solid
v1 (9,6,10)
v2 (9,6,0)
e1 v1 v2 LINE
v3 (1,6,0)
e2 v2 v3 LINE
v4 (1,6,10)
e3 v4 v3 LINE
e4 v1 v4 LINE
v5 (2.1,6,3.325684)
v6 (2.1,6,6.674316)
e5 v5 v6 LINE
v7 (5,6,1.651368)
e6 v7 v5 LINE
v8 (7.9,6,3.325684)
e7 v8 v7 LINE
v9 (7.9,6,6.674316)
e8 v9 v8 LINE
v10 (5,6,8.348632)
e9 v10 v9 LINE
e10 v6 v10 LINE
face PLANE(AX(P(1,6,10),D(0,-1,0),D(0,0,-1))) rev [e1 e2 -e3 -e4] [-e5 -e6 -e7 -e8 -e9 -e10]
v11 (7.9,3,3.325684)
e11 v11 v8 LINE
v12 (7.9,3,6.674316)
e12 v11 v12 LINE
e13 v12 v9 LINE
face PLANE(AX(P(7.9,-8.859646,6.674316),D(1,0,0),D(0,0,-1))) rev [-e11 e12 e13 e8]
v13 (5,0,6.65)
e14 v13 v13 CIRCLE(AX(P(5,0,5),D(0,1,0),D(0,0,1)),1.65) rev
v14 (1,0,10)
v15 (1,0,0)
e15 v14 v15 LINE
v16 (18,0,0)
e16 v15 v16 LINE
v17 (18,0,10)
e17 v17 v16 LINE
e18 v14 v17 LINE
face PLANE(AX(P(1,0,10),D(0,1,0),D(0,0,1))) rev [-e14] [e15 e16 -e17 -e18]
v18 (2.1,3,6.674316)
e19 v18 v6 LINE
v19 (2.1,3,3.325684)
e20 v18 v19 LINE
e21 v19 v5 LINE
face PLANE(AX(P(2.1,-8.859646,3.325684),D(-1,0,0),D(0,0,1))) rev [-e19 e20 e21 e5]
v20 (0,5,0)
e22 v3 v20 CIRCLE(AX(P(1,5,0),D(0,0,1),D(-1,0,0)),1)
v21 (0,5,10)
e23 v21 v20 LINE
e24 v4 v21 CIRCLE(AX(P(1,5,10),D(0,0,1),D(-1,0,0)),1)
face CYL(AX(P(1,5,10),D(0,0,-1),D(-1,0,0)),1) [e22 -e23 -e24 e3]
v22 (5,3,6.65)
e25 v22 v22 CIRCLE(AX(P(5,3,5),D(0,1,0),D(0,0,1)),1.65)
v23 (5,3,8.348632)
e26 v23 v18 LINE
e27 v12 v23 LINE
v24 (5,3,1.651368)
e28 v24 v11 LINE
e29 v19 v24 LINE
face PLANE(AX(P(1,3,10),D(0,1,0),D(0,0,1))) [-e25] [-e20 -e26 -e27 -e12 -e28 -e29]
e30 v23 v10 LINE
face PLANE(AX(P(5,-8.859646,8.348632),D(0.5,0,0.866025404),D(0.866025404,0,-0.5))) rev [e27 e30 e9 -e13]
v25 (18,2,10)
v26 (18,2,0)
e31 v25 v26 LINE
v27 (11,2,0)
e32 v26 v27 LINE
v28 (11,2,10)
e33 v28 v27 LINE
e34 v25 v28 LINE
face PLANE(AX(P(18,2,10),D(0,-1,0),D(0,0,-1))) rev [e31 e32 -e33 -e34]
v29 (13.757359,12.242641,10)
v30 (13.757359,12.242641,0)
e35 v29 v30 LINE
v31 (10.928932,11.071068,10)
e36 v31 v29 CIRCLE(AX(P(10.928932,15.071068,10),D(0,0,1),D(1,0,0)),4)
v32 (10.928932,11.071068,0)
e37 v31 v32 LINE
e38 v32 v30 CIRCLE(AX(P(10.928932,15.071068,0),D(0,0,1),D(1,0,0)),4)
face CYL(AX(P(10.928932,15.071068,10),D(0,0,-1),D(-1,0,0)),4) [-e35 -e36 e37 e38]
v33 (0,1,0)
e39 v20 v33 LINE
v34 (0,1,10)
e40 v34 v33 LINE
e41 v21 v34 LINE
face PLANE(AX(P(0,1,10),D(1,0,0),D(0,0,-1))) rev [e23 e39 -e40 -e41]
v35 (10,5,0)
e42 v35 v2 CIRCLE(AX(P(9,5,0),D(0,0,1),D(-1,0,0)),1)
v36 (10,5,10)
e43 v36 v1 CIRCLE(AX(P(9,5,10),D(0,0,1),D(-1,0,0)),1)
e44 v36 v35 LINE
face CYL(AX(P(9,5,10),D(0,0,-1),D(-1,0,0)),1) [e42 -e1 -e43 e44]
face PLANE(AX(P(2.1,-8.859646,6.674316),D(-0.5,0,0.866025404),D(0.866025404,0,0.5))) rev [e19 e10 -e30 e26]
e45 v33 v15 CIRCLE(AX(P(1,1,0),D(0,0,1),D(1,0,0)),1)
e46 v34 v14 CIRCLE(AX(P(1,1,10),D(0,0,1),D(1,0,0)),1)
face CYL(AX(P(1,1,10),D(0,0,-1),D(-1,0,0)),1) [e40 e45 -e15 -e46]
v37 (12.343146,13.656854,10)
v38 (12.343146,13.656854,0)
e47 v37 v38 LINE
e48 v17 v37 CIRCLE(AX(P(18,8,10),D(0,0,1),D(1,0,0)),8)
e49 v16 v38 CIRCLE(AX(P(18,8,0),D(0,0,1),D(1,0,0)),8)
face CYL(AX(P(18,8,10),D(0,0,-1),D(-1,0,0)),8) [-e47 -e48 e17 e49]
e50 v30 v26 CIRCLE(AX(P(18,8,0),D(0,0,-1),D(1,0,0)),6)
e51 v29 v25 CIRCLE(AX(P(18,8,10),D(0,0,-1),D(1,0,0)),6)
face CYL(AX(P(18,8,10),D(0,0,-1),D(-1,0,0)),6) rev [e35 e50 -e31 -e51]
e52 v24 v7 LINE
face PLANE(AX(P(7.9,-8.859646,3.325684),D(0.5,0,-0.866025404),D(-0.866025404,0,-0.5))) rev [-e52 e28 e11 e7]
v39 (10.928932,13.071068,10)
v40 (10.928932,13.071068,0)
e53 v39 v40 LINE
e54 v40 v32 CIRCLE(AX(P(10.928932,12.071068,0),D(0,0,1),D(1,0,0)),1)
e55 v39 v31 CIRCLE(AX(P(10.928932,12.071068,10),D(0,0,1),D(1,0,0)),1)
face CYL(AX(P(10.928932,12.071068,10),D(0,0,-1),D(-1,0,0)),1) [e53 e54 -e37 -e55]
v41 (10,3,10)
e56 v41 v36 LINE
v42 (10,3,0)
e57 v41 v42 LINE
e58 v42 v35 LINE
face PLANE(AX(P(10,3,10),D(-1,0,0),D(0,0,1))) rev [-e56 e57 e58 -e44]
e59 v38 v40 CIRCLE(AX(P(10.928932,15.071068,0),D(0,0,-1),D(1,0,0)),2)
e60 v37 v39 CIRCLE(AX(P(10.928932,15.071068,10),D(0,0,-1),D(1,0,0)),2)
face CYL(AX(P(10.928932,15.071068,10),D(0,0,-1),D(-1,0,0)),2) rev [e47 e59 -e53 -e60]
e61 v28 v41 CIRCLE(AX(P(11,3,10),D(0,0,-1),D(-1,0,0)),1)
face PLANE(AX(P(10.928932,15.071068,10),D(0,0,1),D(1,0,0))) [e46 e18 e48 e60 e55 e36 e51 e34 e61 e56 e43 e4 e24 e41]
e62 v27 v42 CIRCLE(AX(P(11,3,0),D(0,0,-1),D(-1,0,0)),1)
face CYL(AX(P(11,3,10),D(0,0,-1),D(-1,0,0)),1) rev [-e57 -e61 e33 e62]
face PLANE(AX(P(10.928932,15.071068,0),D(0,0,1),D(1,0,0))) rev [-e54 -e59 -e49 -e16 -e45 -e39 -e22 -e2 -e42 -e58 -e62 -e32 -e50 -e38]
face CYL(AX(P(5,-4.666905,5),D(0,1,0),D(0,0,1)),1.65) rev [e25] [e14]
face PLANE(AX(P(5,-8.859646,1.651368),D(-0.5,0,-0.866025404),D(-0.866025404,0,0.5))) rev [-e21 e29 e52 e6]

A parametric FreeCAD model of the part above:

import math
import FreeCAD as App
import Part
import Sketcher
Q = App.Units.Quantity

doc = App.newDocument("Part")
body = doc.addObject("PartDesign::Body", "Body")

# Sketch on XY plane
sketch1 = body.newObject("Sketcher::SketchObject", "Sketch")
sketch1.AttachmentSupport = (doc.getObject("XY_Plane"), [""])
sketch1.MapMode = "FlatFace"
sketch1.addGeometry([
    Part.LineSegment(App.Vector(0, 5, 0), App.Vector(0, 1, 0)),  # 0
    Part.ArcOfCircle(Part.Circle(App.Vector(1, 1, 0), App.Vector(0, 0, 1), 1), math.radians(-180), math.radians(-90)),  # 1
    Part.LineSegment(App.Vector(1, 0, 0), App.Vector(18, 0, 0)),  # 2
    Part.ArcOfCircle(Part.Circle(App.Vector(18, 8, 0), App.Vector(0, 0, 1), 8), math.radians(-90), math.radians(135)),  # 3
    Part.ArcOfCircle(Part.Circle(App.Vector(10.928932, 15.071068, 0), App.Vector(0, 0, 1), 2), math.radians(-90), math.radians(-45)),  # 4
    Part.ArcOfCircle(Part.Circle(App.Vector(10.928932, 12.071068, 0), App.Vector(0, 0, 1), 1), math.radians(90), math.radians(270)),  # 5
    Part.ArcOfCircle(Part.Circle(App.Vector(10.928932, 15.071068, 0), App.Vector(0, 0, 1), 4), math.radians(-90), math.radians(-45)),  # 6
    Part.ArcOfCircle(Part.Circle(App.Vector(18, 8, 0), App.Vector(0, 0, 1), 6), math.radians(-90), math.radians(135)),  # 7
    Part.LineSegment(App.Vector(18, 2, 0), App.Vector(11, 2, 0)),  # 8
    Part.ArcOfCircle(Part.Circle(App.Vector(11, 3, 0), App.Vector(0, 0, 1), 1), math.radians(-180), math.radians(-90)),  # 9
    Part.LineSegment(App.Vector(10, 3, 0), App.Vector(10, 5, 0)),  # 10
    Part.ArcOfCircle(Part.Circle(App.Vector(9, 5, 0), App.Vector(0, 0, 1), 1), math.radians(0), math.radians(90)),  # 11
    Part.LineSegment(App.Vector(9, 6, 0), App.Vector(1, 6, 0)),  # 12
    Part.ArcOfCircle(Part.Circle(App.Vector(1, 5, 0), App.Vector(0, 0, 1), 1), math.radians(90), math.radians(180)),  # 13
], False)
sketch1.addConstraint([
    Sketcher.Constraint("Tangent", 0, 2, 1, 1),
    Sketcher.Constraint("Tangent", 1, 2, 2, 1),
    Sketcher.Constraint("Tangent", 2, 2, 3, 1),
    Sketcher.Constraint("Tangent", 3, 2, 4, 2),
    Sketcher.Constraint("Tangent", 4, 1, 5, 1),
    Sketcher.Constraint("Tangent", 5, 2, 6, 1),
    Sketcher.Constraint("Tangent", 6, 2, 7, 2),
    Sketcher.Constraint("Tangent", 7, 1, 8, 1),
    Sketcher.Constraint("Tangent", 8, 2, 9, 2),
    Sketcher.Constraint("Tangent", 9, 1, 10, 1),
    Sketcher.Constraint("Tangent", 10, 2, 11, 1),
    Sketcher.Constraint("Tangent", 11, 2, 12, 1),
    Sketcher.Constraint("Tangent", 12, 2, 13, 1),
    Sketcher.Constraint("Tangent", 13, 2, 0, 1),
    Sketcher.Constraint("Vertical", 0),
    Sketcher.Constraint("Horizontal", 2),
    Sketcher.Constraint("Horizontal", 8),
    Sketcher.Constraint("Vertical", 10),
    Sketcher.Constraint("Horizontal", 12),
    Sketcher.Constraint("Coincident", 6, 3, 4, 3),
    Sketcher.Constraint("Coincident", 7, 3, 3, 3),
    Sketcher.Constraint("Equal", 1, 5),
    Sketcher.Constraint("Equal", 5, 9),
    Sketcher.Constraint("Equal", 9, 11),
    Sketcher.Constraint("Equal", 11, 13),
    Sketcher.Constraint("PointOnObject", 0, 2, -2),
    Sketcher.Constraint("PointOnObject", 1, 2, -1),
    Sketcher.Constraint("Vertical", 4, 3, 5, 3),
    Sketcher.Constraint("Radius", 1, Q("1 mm")),
    Sketcher.Constraint("Radius", 3, Q("8 mm")),
    Sketcher.Constraint("Radius", 4, Q("2 mm")),
    Sketcher.Constraint("DistanceX", 2, 1, 2, 2, Q("17 mm")),
    Sketcher.Constraint("DistanceX", 8, 2, 8, 1, Q("7 mm")),
    Sketcher.Constraint("DistanceY", 0, 2, 0, 1, Q("4 mm")),
    Sketcher.Constraint("DistanceX", -1, 1, 6, 2, Q("13.757359 mm")),
])
pad1 = body.newObject("PartDesign::Pad", "Pad")
pad1.Profile = sketch1
pad1.Length = 10

# Sketch on XZ plane
sketch2 = body.newObject("Sketcher::SketchObject", "Sketch001")
sketch2.AttachmentSupport = (doc.getObject("XZ_Plane"), [""])
sketch2.MapMode = "FlatFace"
sketch2.AttachmentOffset = App.Placement(App.Vector(0, 0, -6), App.Rotation())
sketch2.addGeometry([
    Part.LineSegment(App.Vector(5, 1.651368, 0), App.Vector(2.1, 3.325684, 0)),  # 0
    Part.LineSegment(App.Vector(2.1, 3.325684, 0), App.Vector(2.1, 6.674316, 0)),  # 1
    Part.LineSegment(App.Vector(2.1, 6.674316, 0), App.Vector(5, 8.348632, 0)),  # 2
    Part.LineSegment(App.Vector(5, 8.348632, 0), App.Vector(7.9, 6.674316, 0)),  # 3
    Part.LineSegment(App.Vector(7.9, 6.674316, 0), App.Vector(7.9, 3.325684, 0)),  # 4
    Part.LineSegment(App.Vector(7.9, 3.325684, 0), App.Vector(5, 1.651368, 0)),  # 5
], False)
sketch2.addConstraint([
    Sketcher.Constraint("Coincident", 0, 2, 1, 1),
    Sketcher.Constraint("Coincident", 1, 2, 2, 1),
    Sketcher.Constraint("Coincident", 2, 2, 3, 1),
    Sketcher.Constraint("Coincident", 3, 2, 4, 1),
    Sketcher.Constraint("Coincident", 4, 2, 5, 1),
    Sketcher.Constraint("Coincident", 5, 2, 0, 1),
    Sketcher.Constraint("Vertical", 1),
    Sketcher.Constraint("Vertical", 4),
    Sketcher.Constraint("Parallel", 0, 3),
    Sketcher.Constraint("Parallel", 2, 5),
    Sketcher.Constraint("Horizontal", 1, 2, 3, 2),
    Sketcher.Constraint("Horizontal", 0, 2, 4, 2),
    Sketcher.Constraint("Vertical", 2, 2, 5, 2),
    Sketcher.Constraint("Angle", 0, Q("150 deg")),
    Sketcher.Constraint("DistanceX", -1, 1, 2, 2, Q("5 mm")),
    Sketcher.Constraint("DistanceX", -1, 1, 0, 2, Q("2.1 mm")),
    Sketcher.Constraint("DistanceY", 1, 1, 1, 2, Q("3.348632 mm")),
    Sketcher.Constraint("DistanceY", -1, 1, 2, 2, Q("8.348632 mm")),
])
pocket1 = body.newObject("PartDesign::Pocket", "Pocket")
pocket1.Profile = sketch2
pocket1.Length = 3
pocket1.Reversed = True

# Sketch on XZ plane
sketch3 = body.newObject("Sketcher::SketchObject", "Sketch002")
sketch3.AttachmentSupport = (doc.getObject("XZ_Plane"), [""])
sketch3.MapMode = "FlatFace"
sketch3.AttachmentOffset = App.Placement(App.Vector(0, 0, -6), App.Rotation())
sketch3.addGeometry(Part.Circle(App.Vector(5, 5, 0), App.Vector(0, 0, 1), 1.65), False)
sketch3.addConstraint([
    Sketcher.Constraint("Diameter", 0, Q("3.3 mm")),
    Sketcher.Constraint("DistanceX", -1, 1, 0, 3, Q("5 mm")),
    Sketcher.Constraint("DistanceY", -1, 1, 0, 3, Q("5 mm")),
])
pocket2 = body.newObject("PartDesign::Pocket", "Pocket001")
pocket2.Profile = sketch3
pocket2.Length = 6
pocket2.Reversed = True

doc.recompute()
